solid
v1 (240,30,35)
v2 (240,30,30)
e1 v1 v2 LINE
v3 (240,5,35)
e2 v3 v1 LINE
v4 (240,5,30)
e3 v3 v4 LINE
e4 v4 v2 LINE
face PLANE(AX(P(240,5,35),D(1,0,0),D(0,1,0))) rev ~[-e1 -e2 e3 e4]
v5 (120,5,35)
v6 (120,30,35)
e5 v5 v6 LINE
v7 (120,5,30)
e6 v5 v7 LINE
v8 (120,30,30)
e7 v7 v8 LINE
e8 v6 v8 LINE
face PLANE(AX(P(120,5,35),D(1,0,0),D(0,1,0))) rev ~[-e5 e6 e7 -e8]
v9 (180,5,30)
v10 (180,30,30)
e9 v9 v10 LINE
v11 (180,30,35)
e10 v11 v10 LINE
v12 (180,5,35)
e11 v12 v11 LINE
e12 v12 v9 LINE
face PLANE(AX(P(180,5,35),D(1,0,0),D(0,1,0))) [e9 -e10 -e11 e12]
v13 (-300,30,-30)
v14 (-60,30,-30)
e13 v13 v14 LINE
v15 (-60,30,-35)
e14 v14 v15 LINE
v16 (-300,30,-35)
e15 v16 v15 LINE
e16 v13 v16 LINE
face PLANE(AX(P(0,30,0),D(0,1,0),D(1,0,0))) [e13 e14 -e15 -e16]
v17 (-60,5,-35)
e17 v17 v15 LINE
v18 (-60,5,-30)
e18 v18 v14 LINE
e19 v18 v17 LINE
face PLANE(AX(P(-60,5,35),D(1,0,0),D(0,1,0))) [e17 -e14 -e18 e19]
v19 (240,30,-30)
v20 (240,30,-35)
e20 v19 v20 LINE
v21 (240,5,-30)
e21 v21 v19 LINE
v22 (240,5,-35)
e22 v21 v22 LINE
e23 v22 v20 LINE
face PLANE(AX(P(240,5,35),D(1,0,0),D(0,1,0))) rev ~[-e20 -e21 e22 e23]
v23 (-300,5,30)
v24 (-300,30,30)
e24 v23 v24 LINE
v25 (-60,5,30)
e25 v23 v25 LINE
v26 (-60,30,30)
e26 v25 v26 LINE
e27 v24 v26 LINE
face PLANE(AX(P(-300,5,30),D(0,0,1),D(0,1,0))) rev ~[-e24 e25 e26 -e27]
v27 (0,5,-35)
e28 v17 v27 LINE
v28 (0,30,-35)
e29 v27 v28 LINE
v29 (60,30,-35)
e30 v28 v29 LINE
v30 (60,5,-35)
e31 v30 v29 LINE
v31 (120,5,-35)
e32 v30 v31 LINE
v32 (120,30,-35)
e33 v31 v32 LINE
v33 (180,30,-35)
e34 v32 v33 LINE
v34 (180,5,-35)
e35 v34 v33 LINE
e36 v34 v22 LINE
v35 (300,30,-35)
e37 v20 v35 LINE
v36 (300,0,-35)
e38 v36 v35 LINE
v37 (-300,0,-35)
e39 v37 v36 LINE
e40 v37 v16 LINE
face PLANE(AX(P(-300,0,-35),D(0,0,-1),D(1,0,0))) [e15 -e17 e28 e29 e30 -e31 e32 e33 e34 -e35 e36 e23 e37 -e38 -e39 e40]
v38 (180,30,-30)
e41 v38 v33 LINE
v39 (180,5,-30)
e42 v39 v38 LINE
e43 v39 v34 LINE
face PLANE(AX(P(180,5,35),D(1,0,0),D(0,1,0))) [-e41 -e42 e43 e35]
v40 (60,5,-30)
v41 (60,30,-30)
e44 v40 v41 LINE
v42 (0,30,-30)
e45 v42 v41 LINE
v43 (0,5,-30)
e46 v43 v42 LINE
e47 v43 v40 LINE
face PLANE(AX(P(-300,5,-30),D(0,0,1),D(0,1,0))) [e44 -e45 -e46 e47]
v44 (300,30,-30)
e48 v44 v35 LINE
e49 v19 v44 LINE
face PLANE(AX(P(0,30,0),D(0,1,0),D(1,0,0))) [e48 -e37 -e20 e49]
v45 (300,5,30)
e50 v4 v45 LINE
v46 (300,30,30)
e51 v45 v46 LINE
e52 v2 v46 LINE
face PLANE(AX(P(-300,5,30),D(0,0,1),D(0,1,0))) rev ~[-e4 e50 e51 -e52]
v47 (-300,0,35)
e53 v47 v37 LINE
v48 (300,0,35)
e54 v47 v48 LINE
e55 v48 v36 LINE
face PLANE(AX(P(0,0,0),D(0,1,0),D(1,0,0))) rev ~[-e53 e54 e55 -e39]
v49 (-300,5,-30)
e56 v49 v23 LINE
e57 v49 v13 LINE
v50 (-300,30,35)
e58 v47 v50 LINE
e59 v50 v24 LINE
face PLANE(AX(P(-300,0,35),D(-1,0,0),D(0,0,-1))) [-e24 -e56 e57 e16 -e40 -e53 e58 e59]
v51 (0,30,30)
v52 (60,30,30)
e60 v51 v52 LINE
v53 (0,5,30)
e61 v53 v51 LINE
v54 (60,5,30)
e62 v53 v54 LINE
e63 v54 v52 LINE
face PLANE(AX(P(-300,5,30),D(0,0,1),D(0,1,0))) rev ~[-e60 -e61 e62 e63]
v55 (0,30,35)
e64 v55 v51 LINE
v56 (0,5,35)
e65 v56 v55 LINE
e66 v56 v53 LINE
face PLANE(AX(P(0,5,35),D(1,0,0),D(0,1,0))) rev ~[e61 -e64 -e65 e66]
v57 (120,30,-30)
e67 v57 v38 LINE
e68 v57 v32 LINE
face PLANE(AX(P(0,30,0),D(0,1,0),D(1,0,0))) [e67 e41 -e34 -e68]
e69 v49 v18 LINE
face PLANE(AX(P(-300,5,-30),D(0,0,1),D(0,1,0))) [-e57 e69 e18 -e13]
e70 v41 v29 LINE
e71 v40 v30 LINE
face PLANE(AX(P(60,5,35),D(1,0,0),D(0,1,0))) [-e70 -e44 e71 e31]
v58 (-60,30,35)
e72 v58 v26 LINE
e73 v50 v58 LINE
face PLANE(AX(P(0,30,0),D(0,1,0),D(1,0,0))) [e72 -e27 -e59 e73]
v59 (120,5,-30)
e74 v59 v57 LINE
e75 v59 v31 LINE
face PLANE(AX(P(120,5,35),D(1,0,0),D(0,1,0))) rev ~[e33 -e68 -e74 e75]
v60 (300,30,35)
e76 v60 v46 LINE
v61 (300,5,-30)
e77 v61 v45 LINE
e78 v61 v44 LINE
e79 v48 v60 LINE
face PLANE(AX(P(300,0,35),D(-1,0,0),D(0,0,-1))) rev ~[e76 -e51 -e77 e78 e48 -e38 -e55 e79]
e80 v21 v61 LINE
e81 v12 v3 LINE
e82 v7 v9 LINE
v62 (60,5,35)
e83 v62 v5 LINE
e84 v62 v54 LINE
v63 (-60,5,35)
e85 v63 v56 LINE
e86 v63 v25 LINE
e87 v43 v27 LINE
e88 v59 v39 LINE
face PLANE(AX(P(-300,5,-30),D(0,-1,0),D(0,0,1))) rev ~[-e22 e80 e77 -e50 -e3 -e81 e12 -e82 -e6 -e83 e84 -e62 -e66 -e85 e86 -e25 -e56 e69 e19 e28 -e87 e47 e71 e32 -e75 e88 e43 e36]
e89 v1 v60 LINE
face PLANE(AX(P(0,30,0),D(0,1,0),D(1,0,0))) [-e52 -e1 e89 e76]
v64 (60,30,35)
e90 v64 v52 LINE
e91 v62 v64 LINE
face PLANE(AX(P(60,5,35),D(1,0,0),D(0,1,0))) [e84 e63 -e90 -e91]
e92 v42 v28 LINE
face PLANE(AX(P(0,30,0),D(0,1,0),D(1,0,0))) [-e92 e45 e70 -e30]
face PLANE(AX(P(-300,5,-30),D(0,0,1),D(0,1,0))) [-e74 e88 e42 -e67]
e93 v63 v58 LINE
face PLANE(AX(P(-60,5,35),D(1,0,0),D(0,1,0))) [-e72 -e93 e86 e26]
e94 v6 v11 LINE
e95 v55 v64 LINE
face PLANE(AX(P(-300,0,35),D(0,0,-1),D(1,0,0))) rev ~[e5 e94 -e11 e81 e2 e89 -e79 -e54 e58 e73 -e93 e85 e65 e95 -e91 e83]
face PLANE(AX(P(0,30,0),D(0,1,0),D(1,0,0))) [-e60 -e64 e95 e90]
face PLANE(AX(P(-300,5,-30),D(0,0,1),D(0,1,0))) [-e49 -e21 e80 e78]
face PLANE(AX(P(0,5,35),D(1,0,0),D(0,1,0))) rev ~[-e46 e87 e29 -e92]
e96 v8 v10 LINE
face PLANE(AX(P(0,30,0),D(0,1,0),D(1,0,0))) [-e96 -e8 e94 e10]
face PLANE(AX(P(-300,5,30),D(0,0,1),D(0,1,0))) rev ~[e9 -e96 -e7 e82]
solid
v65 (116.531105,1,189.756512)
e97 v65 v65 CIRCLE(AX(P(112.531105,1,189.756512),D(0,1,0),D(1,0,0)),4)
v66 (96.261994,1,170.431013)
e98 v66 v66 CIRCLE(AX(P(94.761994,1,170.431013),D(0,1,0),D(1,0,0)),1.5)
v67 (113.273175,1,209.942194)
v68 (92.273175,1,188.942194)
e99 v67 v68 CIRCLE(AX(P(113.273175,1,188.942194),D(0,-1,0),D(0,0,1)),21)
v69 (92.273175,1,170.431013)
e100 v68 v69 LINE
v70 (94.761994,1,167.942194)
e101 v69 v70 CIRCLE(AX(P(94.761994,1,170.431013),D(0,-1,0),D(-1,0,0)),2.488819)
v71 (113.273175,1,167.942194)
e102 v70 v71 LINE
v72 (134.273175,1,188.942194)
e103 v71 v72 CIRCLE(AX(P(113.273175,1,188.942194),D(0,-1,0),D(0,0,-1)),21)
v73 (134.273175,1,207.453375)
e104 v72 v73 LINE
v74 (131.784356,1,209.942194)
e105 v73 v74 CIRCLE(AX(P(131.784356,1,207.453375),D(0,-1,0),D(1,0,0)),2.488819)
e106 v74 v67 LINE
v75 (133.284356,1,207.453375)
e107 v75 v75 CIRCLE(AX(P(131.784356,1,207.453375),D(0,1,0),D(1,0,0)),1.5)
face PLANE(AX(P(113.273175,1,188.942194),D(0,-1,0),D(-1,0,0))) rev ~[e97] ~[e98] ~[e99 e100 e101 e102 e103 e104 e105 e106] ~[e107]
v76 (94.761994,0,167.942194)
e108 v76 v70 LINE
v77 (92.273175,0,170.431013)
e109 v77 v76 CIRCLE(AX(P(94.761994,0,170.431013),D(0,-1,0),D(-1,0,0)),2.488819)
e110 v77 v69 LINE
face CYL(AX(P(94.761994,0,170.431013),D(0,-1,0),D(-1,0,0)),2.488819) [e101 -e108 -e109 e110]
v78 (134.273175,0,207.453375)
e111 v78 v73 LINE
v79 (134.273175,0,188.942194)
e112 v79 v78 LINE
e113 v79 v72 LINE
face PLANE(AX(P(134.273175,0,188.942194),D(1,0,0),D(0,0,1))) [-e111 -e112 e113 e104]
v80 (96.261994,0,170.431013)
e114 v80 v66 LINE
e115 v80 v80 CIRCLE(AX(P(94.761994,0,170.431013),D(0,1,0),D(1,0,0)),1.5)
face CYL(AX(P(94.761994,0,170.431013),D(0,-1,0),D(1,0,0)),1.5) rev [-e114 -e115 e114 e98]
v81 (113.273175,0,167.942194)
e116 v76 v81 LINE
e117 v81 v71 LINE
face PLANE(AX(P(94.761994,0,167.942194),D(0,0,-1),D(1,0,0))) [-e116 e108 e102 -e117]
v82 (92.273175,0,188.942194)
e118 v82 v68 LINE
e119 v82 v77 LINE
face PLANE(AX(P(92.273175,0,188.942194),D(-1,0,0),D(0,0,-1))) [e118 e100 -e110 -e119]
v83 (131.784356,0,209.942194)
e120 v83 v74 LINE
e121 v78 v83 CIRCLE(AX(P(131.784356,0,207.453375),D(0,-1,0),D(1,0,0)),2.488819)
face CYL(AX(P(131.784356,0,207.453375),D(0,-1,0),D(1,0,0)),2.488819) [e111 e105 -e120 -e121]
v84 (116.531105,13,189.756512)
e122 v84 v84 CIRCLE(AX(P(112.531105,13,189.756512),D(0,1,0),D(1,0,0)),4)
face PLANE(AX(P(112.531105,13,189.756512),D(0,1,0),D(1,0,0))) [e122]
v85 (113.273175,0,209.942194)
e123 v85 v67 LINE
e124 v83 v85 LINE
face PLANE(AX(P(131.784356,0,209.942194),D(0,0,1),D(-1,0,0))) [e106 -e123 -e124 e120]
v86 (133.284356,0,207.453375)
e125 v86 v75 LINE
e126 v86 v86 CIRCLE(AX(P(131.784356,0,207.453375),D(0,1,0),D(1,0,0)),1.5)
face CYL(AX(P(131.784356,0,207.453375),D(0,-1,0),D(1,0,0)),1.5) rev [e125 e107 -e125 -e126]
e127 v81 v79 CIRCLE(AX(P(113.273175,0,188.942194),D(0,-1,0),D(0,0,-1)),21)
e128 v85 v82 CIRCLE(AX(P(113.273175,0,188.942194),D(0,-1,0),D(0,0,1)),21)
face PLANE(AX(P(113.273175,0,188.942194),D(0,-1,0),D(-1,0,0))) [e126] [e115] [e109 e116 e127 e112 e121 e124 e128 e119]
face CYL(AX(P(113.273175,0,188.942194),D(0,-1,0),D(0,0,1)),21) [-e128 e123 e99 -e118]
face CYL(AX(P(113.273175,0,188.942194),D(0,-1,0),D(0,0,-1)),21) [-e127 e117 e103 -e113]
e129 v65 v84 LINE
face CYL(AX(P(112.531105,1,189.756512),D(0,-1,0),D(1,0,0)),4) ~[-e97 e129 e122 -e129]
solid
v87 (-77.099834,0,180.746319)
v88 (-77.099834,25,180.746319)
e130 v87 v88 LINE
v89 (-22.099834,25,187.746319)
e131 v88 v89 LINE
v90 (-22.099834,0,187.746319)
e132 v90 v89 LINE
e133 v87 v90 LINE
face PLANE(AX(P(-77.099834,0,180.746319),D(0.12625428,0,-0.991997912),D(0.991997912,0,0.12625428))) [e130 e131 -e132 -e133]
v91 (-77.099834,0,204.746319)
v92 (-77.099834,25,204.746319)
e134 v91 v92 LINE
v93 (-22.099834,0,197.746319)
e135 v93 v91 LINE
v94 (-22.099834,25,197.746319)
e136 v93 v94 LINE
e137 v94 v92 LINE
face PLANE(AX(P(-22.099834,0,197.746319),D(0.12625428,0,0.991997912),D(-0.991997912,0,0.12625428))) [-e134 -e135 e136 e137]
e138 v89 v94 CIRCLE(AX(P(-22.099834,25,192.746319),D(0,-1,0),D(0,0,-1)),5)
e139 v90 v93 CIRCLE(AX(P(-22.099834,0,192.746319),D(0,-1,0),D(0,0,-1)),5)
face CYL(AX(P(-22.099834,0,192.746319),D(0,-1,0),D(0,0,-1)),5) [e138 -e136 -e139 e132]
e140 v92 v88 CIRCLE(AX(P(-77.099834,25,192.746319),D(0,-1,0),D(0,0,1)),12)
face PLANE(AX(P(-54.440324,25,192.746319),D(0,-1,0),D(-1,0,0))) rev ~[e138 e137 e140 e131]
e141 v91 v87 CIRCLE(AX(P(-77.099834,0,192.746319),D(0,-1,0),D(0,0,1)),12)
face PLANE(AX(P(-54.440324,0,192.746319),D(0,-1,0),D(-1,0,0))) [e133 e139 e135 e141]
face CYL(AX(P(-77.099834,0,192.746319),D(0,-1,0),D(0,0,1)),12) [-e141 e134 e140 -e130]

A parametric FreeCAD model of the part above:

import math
import FreeCAD as App
import Part
import Sketcher
Q = App.Units.Quantity


def add_polygon(sketch, points):
    """Adds a closed chain of lines whose ends are joined by coincident constraints."""
    first, n = sketch.GeometryCount, len(points)
    for a, b in zip(points, points[1:] + points[:1]):
        sketch.addGeometry(Part.LineSegment(App.Vector(*a, 0), App.Vector(*b, 0)), False)
    for i in range(n):
        sketch.addConstraint(Sketcher.Constraint("Coincident", first + i, 2, first + (i + 1) % n, 1))

doc = App.newDocument("Part")
body = doc.addObject("PartDesign::Body", "Body")

sketch1 = doc.addObject("Sketcher::SketchObject", "Sketch")
body.addObject(sketch1)
sketch1.AttachmentSupport = (doc.XZ_Plane, [""])
sketch1.MapMode = "FlatFace"
add_polygon(sketch1, [(-300, -35), (-300, 35), (300, 35), (300, -35)])
sketch1.addConstraint([
    Sketcher.Constraint("Vertical", 0),
    Sketcher.Constraint("Horizontal", 1),
    Sketcher.Constraint("Vertical", 2),
    Sketcher.Constraint("Horizontal", 3),
    Sketcher.Constraint("Symmetric", 0, 2, 2, 2, -1, 1),
    Sketcher.Constraint("DistanceX", 1, 1, 1, 2, Q("600 mm")),
    Sketcher.Constraint("DistanceY", 0, 1, 0, 2, Q("70 mm")),
])
pad1 = doc.addObject("PartDesign::Pad", "Pad")
body.addObject(pad1)
pad1.Profile = sketch1
pad1.Length = 30
pad1.Reversed = True

sketch2 = doc.addObject("Sketcher::SketchObject", "Sketch001")
body.addObject(sketch2)
sketch2.AttachmentSupport = (doc.YZ_Plane, [""])
sketch2.MapMode = "FlatFace"
sketch2.AttachmentOffset = App.Placement(App.Vector(0, 0, -300), App.Rotation())
add_polygon(sketch2, [(30, -30), (5, -30), (5, 30), (30, 30)])
sketch2.addConstraint([
    Sketcher.Constraint("Horizontal", 0),
    Sketcher.Constraint("Vertical", 1),
    Sketcher.Constraint("Horizontal", 2),
    Sketcher.Constraint("Vertical", 3),
    Sketcher.Constraint("DistanceX", 0, 2, 0, 1, Q("25 mm")),
    Sketcher.Constraint("DistanceY", 1, 1, 1, 2, Q("60 mm")),
    Sketcher.Constraint("DistanceX", -1, 1, 0, 2, Q("5 mm")),
    Sketcher.Constraint("DistanceY", 0, 2, -1, 1, Q("30 mm")),
])
pocket1 = doc.addObject("PartDesign::Pocket", "Pocket")
body.addObject(pocket1)
pocket1.Profile = sketch2
pocket1.Length = 600
pocket1.Reversed = True

sketch3 = doc.addObject("Sketcher::SketchObject", "Sketch002")
body.addObject(sketch3)
sketch3.AttachmentSupport = (doc.XY_Plane, [""])
sketch3.MapMode = "FlatFace"
sketch3.AttachmentOffset = App.Placement(App.Vector(0, 0, 35), App.Rotation())
add_polygon(sketch3, [(180, 30), (180, 5), (240, 5), (240, 30)])
sketch3.addConstraint([
    Sketcher.Constraint("Vertical", 0),
    Sketcher.Constraint("Horizontal", 1),
    Sketcher.Constraint("Vertical", 2),
    Sketcher.Constraint("Horizontal", 3),
    Sketcher.Constraint("DistanceX", 1, 1, 1, 2, Q("60 mm")),
    Sketcher.Constraint("DistanceY", 0, 2, 0, 1, Q("25 mm")),
    Sketcher.Constraint("DistanceX", -1, 1, 0, 2, Q("180 mm")),
    Sketcher.Constraint("DistanceY", -1, 1, 0, 2, Q("5 mm")),
])
pocket2 = doc.addObject("PartDesign::Pocket", "Pocket001")
body.addObject(pocket2)
pocket2.Profile = sketch3
pocket2.Length = 70

sketch4 = doc.addObject("Sketcher::SketchObject", "Sketch003")
body.addObject(sketch4)
sketch4.AttachmentSupport = (doc.XY_Plane, [""])
sketch4.MapMode = "FlatFace"
sketch4.AttachmentOffset = App.Placement(App.Vector(0, 0, 35), App.Rotation())
add_polygon(sketch4, [(60, 30), (60, 5), (120, 5), (120, 30)])
add_polygon(sketch4, [(-60, 30), (-60, 5), (0, 5), (0, 30)])
sketch4.addConstraint([
    Sketcher.Constraint("Vertical", 0),
    Sketcher.Constraint("Horizontal", 1),
    Sketcher.Constraint("Vertical", 2),
    Sketcher.Constraint("Horizontal", 3),
    Sketcher.Constraint("Vertical", 4),
    Sketcher.Constraint("Horizontal", 5),
    Sketcher.Constraint("Vertical", 6),
    Sketcher.Constraint("Horizontal", 7),
    Sketcher.Constraint("Symmetric", 0, 2, 4, 2, -2),
    Sketcher.Constraint("PointOnObject", 5, 2, -2),
    Sketcher.Constraint("Horizontal", 3, 2, 6, 2),
    Sketcher.Constraint("Equal", 3, 5),
    Sketcher.Constraint("DistanceX", 1, 1, 1, 2, Q("60 mm")),
    Sketcher.Constraint("DistanceY", 0, 2, 0, 1, Q("25 mm")),
    Sketcher.Constraint("DistanceY", -1, 1, 0, 2, Q("5 mm")),
])
pocket3 = doc.addObject("PartDesign::Pocket", "Pocket002")
body.addObject(pocket3)
pocket3.Profile = sketch4
pocket3.Length = 70
body2 = doc.addObject("PartDesign::Body", "Body001")

sketch5 = doc.addObject("Sketcher::SketchObject", "Sketch004")
body2.addObject(sketch5)
sketch5.AttachmentSupport = (doc.getObject("XZ_Plane001"), [""])
sketch5.MapMode = "FlatFace"
sketch5.addGeometry([
    Part.LineSegment(App.Vector(-22, 188, 0), App.Vector(-77, 181, 0)),
    Part.ArcOfCircle(Part.Circle(App.Vector(-77, 193, 0), App.Vector(0, 0, 1), 12), math.radians(90), math.radians(270)),
    Part.LineSegment(App.Vector(-77, 205, 0), App.Vector(-22, 198, 0)),
    Part.ArcOfCircle(Part.Circle(App.Vector(-22, 193, 0), App.Vector(0, 0, 1), 5), math.radians(-90), math.radians(90)),
], False)
sketch5.addConstraint([
    Sketcher.Constraint("Coincident", 0, 2, 1, 2),
    Sketcher.Constraint("Coincident", 1, 1, 2, 1),
    Sketcher.Constraint("Coincident", 2, 2, 3, 2),
    Sketcher.Constraint("Coincident", 3, 1, 0, 1),
    Sketcher.Constraint("Horizontal", 1, 3, 3, 3),
    Sketcher.Constraint("Vertical", 1, 3, 0, 2),
    Sketcher.Constraint("Vertical", 0, 2, 1, 1),
    Sketcher.Constraint("Vertical", 3, 3, 2, 2),
    Sketcher.Constraint("Vertical", 2, 2, 3, 1),
    Sketcher.Constraint("Radius", 1, Q("12 mm")),
    Sketcher.Constraint("Radius", 3, Q("5 mm")),
    Sketcher.Constraint("DistanceX", 1, 3, 3, 3, Q("55 mm")),
    Sketcher.Constraint("DistanceY", -1, 1, 1, 3, Q("192.746319 mm")),
    Sketcher.Constraint("DistanceX", 1, 3, -1, 1, Q("77.099834 mm")),
])
pad2 = doc.addObject("PartDesign::Pad", "Pad001")
body2.addObject(pad2)
pad2.Profile = sketch5
pad2.Length = 25
pad2.Reversed = True
body3 = doc.addObject("PartDesign::Body", "Body002")

sketch6 = doc.addObject("Sketcher::SketchObject", "Sketch005")
body3.addObject(sketch6)
sketch6.AttachmentSupport = (doc.getObject("XZ_Plane002"), [""])
sketch6.MapMode = "FlatFace"
sketch6.addGeometry([
    Part.LineSegment(App.Vector(113.3, 167.9, 0), App.Vector(94.8, 167.9, 0)),
    Part.ArcOfCircle(Part.Circle(App.Vector(94.8, 170.4, 0), App.Vector(0, 0, 1), 2.5), math.radians(180), math.radians(270)),
    Part.LineSegment(App.Vector(92.3, 170.4, 0), App.Vector(92.3, 188.9, 0)),
    Part.ArcOfCircle(Part.Circle(App.Vector(113.3, 188.9, 0), App.Vector(0, 0, 1), 21), math.radians(90), math.radians(180)),
    Part.LineSegment(App.Vector(113.3, 209.9, 0), App.Vector(131.8, 209.9, 0)),
    Part.ArcOfCircle(Part.Circle(App.Vector(131.8, 207.5, 0), App.Vector(0, 0, 1), 2.5), math.radians(0), math.radians(90)),
    Part.LineSegment(App.Vector(134.3, 207.5, 0), App.Vector(134.3, 188.9, 0)),
    Part.ArcOfCircle(Part.Circle(App.Vector(113.3, 188.9, 0), App.Vector(0, 0, 1), 21), math.radians(-90), math.radians(0)),
    Part.Circle(App.Vector(131.8, 207.5, 0), App.Vector(0, 0, 1), 1.5),
    Part.Circle(App.Vector(94.8, 170.4, 0), App.Vector(0, 0, 1), 1.5),
], False)
sketch6.addConstraint([
    Sketcher.Constraint("Tangent", 0, 2, 1, 2),
    Sketcher.Constraint("Tangent", 1, 1, 2, 1),
    Sketcher.Constraint("Tangent", 2, 2, 3, 2),
    Sketcher.Constraint("Tangent", 3, 1, 4, 1),
    Sketcher.Constraint("Tangent", 4, 2, 5, 2),
    Sketcher.Constraint("Tangent", 5, 1, 6, 1),
    Sketcher.Constraint("Tangent", 6, 2, 7, 2),
    Sketcher.Constraint("Tangent", 7, 1, 0, 1),
    Sketcher.Constraint("Horizontal", 0),
    Sketcher.Constraint("Vertical", 2),
    Sketcher.Constraint("Horizontal", 4),
    Sketcher.Constraint("Vertical", 6),
    Sketcher.Constraint("Coincident", 7, 3, 3, 3),
    Sketcher.Constraint("Coincident", 8, 3, 5, 3),
    Sketcher.Constraint("Coincident", 9, 3, 1, 3),
    Sketcher.Constraint("Equal", 1, 5),
    Sketcher.Constraint("Equal", 3, 7),
    Sketcher.Constraint("Equal", 8, 9),
    Sketcher.Constraint("Diameter", 8, Q("3 mm")),
    Sketcher.Constraint("Radius", 3, Q("21 mm")),
    Sketcher.Constraint("Radius", 1, Q("2.488819 mm")),
    Sketcher.Constraint("DistanceX", -1, 1, 1, 3, Q("94.761994 mm")),
    Sketcher.Constraint("DistanceY", -1, 1, 1, 3, Q("170.431013 mm")),
])
pad3 = doc.addObject("PartDesign::Pad", "Pad002")
body3.addObject(pad3)
pad3.Profile = sketch6
pad3.Length = 1
pad3.Reversed = True

sketch7 = doc.addObject("Sketcher::SketchObject", "Sketch006")
body3.addObject(sketch7)
sketch7.AttachmentSupport = (doc.getObject("XZ_Plane002"), [""])
sketch7.MapMode = "FlatFace"
sketch7.AttachmentOffset = App.Placement(App.Vector(0, 0, -1), App.Rotation())
sketch7.addGeometry(Part.Circle(App.Vector(112.5, 189.8, 0), App.Vector(0, 0, 1), 4), False)
sketch7.addConstraint([
    Sketcher.Constraint("Diameter", 0, Q("8 mm")),
    Sketcher.Constraint("DistanceY", -1, 1, 0, 3, Q("189.756512 mm")),
    Sketcher.Constraint("DistanceX", -1, 1, 0, 3, Q("112.531105 mm")),
])
pad4 = doc.addObject("PartDesign::Pad", "Pad003")
body3.addObject(pad4)
pad4.Profile = sketch7
pad4.Length = 12
pad4.Reversed = True

doc.recompute()
